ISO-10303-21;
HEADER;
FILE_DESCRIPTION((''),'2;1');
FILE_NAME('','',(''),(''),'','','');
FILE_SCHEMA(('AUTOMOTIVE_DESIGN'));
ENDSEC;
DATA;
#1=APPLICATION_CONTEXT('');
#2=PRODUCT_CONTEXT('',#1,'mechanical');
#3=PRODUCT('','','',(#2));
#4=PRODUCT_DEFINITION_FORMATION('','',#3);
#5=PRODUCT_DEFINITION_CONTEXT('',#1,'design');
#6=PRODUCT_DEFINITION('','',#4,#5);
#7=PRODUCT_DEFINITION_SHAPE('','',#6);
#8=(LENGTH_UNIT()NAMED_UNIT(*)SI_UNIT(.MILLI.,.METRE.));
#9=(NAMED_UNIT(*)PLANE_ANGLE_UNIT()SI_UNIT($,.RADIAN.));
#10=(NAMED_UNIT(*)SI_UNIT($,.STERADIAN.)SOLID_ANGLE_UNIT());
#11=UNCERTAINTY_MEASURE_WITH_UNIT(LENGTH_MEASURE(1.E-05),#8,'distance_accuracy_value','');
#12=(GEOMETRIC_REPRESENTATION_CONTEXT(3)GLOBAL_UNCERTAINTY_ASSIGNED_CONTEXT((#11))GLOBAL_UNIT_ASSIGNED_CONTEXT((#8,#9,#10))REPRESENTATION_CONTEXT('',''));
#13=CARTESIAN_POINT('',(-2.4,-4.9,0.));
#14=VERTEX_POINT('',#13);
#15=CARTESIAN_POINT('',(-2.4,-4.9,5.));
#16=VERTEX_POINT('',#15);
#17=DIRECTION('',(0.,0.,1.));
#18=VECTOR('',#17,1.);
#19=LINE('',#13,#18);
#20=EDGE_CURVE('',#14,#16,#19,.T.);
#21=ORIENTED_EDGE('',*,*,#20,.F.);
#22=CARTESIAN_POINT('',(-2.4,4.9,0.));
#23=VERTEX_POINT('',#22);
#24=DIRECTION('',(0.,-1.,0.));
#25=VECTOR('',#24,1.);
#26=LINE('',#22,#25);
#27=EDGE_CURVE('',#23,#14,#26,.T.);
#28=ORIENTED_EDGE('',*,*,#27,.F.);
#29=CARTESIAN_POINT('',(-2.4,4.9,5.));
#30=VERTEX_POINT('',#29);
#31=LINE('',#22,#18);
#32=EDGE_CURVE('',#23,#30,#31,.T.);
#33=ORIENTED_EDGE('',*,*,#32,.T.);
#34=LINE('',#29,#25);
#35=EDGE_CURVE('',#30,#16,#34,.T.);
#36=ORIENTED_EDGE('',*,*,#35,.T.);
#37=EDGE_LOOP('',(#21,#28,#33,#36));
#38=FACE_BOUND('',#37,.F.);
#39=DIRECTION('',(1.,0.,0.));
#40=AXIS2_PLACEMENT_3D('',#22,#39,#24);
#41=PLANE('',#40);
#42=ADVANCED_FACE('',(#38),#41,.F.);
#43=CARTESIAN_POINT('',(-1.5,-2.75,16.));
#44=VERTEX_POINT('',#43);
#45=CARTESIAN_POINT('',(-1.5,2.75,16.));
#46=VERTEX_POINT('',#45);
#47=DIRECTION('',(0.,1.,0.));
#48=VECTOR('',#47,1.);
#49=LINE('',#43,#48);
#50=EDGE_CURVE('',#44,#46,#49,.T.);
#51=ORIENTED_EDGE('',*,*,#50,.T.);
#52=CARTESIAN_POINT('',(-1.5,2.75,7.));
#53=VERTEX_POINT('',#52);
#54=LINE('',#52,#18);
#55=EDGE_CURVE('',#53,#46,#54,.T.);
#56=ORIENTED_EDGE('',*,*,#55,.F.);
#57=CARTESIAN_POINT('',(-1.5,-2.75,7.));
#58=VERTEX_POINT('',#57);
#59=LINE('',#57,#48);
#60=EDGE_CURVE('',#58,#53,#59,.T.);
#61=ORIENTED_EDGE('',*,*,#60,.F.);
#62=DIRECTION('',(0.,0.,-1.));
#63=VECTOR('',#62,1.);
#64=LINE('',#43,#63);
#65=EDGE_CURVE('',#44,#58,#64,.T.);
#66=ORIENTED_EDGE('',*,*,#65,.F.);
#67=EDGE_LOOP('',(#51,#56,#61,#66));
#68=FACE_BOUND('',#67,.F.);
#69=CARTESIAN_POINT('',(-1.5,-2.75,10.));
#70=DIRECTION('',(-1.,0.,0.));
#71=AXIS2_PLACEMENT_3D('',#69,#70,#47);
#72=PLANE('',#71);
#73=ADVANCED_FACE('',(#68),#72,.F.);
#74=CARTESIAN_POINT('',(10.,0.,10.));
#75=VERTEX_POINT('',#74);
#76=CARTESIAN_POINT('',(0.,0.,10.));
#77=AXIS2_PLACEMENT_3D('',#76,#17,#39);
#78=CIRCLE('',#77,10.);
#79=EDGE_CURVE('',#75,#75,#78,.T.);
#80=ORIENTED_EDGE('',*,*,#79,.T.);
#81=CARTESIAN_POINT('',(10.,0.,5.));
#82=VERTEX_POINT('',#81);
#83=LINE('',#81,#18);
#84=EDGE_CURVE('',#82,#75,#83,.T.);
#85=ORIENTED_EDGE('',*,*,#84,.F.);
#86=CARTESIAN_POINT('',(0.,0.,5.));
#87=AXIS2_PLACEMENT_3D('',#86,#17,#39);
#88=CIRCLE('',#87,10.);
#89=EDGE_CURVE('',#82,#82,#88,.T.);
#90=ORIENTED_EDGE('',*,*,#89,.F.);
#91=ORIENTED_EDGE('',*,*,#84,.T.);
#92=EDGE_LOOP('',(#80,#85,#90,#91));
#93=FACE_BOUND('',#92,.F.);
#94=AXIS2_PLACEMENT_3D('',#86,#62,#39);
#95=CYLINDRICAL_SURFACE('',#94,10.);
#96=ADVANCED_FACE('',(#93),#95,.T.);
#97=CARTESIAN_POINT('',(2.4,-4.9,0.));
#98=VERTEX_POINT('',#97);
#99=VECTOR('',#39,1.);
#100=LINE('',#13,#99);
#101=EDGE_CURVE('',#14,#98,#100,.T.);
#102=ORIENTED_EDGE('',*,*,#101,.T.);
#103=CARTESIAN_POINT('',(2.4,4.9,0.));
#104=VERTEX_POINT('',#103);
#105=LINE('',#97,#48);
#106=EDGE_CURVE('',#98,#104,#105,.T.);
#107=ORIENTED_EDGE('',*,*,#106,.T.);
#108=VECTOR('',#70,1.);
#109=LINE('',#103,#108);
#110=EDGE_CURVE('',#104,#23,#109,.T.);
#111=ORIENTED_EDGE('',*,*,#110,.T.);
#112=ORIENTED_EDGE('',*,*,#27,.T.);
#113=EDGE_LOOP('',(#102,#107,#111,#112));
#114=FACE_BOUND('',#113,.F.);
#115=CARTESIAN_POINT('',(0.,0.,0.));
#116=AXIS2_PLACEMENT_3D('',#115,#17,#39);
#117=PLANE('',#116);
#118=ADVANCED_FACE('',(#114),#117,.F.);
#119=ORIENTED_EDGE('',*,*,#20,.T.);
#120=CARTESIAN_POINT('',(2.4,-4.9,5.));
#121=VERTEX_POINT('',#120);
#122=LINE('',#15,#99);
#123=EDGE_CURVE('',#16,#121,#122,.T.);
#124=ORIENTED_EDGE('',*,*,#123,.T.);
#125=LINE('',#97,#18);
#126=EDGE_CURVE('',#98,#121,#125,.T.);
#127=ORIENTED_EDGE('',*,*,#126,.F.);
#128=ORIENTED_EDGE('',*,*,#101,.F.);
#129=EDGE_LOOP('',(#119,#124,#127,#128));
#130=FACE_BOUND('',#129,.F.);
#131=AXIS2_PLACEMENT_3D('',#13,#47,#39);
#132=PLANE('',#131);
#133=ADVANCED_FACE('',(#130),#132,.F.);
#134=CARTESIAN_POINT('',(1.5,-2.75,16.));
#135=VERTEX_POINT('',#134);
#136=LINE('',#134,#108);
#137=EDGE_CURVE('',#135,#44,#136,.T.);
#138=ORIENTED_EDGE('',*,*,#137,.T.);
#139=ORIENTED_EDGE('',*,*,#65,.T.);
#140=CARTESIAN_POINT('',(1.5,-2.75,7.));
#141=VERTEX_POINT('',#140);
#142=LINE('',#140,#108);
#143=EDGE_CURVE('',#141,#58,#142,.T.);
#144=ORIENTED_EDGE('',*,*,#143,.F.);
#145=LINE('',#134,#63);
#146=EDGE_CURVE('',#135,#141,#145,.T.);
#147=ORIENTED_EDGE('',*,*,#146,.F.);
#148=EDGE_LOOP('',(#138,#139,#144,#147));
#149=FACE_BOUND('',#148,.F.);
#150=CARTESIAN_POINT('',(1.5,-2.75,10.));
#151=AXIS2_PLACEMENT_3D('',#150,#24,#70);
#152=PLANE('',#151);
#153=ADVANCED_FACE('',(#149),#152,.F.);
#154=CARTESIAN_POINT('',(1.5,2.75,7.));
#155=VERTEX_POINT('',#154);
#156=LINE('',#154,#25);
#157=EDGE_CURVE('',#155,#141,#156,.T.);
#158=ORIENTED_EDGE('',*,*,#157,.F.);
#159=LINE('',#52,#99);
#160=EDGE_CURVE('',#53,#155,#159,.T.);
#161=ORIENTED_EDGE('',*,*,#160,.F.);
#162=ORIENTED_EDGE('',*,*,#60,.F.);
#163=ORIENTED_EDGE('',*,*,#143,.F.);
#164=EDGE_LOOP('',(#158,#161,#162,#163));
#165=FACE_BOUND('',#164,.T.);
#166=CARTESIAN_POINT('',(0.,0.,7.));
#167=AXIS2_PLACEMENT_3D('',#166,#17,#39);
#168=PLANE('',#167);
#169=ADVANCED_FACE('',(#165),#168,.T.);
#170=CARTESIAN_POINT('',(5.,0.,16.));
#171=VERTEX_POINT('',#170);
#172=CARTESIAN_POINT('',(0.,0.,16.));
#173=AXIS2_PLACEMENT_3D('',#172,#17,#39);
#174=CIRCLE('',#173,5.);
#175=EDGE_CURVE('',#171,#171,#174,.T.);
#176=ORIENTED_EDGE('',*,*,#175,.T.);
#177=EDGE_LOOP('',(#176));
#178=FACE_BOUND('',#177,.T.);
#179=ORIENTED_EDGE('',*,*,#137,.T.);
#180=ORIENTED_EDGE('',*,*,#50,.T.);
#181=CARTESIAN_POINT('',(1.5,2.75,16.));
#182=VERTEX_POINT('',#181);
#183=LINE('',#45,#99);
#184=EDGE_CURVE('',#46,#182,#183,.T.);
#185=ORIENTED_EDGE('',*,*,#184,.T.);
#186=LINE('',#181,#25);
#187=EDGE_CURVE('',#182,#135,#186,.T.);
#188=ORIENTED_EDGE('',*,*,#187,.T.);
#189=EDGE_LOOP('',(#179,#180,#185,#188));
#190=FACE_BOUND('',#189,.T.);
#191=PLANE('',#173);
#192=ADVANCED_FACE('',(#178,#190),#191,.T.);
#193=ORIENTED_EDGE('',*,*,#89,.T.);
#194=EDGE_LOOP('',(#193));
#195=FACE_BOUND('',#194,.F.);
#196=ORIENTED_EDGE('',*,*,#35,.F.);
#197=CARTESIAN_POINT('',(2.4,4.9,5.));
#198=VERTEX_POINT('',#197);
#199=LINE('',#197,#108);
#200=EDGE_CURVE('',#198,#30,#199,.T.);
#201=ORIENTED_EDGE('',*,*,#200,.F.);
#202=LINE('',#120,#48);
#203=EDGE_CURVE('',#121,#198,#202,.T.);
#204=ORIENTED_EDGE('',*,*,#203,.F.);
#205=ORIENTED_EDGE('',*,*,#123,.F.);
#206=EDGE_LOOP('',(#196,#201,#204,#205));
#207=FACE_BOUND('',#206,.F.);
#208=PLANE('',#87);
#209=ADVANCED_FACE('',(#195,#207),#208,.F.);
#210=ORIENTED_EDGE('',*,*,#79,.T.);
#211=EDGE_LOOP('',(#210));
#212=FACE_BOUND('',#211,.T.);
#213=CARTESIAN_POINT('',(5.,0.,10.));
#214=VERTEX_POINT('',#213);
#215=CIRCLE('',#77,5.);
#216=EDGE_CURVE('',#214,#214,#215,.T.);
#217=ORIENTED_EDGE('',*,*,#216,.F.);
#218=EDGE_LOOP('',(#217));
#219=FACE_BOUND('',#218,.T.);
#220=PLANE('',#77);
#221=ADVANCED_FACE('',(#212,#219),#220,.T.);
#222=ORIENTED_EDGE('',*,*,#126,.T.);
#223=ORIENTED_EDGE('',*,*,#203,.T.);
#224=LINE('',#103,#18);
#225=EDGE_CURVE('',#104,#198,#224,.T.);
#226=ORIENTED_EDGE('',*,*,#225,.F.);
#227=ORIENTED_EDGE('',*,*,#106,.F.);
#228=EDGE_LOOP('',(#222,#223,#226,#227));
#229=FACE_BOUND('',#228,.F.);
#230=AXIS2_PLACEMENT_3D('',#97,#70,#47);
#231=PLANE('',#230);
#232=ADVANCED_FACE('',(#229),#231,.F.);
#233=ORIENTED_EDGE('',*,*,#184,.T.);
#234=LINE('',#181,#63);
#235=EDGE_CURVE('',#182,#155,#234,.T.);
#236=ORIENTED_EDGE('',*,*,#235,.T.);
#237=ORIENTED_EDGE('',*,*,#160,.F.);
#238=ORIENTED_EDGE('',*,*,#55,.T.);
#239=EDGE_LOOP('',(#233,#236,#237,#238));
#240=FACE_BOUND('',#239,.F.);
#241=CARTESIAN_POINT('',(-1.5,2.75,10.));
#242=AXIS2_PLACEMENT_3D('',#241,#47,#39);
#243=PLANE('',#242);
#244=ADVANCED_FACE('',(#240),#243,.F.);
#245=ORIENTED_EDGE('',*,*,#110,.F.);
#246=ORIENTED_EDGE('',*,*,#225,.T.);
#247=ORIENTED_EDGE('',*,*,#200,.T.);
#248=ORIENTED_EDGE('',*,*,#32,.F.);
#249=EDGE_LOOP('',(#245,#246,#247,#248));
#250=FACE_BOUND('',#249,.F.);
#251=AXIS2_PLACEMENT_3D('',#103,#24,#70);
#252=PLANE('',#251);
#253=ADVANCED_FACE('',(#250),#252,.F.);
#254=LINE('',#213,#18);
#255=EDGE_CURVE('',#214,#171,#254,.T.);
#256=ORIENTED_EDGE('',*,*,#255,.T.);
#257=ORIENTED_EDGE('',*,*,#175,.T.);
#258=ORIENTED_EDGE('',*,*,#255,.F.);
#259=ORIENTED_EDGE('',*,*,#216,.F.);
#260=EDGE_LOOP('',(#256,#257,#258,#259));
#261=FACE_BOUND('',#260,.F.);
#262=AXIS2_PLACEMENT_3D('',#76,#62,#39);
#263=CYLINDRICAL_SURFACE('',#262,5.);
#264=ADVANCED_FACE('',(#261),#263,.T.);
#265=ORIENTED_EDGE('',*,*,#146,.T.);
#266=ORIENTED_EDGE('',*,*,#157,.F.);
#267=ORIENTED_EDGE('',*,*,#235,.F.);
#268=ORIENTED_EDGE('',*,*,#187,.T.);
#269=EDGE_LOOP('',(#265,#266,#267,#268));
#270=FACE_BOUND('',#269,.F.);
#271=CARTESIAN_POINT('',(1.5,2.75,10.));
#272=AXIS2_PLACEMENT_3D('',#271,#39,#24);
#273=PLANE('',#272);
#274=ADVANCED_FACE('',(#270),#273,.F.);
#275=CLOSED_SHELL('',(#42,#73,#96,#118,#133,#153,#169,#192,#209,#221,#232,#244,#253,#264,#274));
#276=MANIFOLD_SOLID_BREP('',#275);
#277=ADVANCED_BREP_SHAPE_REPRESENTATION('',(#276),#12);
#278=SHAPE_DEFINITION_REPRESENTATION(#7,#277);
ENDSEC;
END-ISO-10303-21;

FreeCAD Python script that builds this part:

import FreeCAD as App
import Part
import Sketcher


def add_polygon(sketch, points):
    """Adds a closed chain of lines whose ends are joined by coincident constraints."""
    first, n = sketch.GeometryCount, len(points)
    for a, b in zip(points, points[1:] + points[:1]):
        sketch.addGeometry(Part.LineSegment(App.Vector(*a, 0), App.Vector(*b, 0)), False)
    for i in range(n):
        sketch.addConstraint(Sketcher.Constraint("Coincident", first + i, 2, first + (i + 1) % n, 1))

doc = App.newDocument("Part")
params = doc.addObject("Spreadsheet::Sheet", "Params")
for row, (alias, value) in enumerate([
    ("sketch1_width", "4.8 mm"),
    ("sketch1_height", "9.8 mm"),
    ("pad1_length", "5 mm"),
    ("sketch2_diameter", "20 mm"),
    ("pad2_length", "5 mm"),
    ("sketch3_diameter", "10 mm"),
    ("sketch3_width", "3 mm"),
    ("sketch3_height", "5.5 mm"),
    ("pad3_length", "6 mm"),
    ("sketch4_width", "3 mm"),
    ("sketch4_height", "5.5 mm"),
    ("pocket1_length", "3 mm"),
], start=1):
    params.set(f"A{row}", alias)
    params.set(f"B{row}", "=" + value)
    params.setAlias(f"B{row}", alias)

body = doc.addObject("PartDesign::Body", "Body")

# Sketch on XY plane
sketch1 = body.newObject("Sketcher::SketchObject", "Sketch")
sketch1.AttachmentSupport = (doc.getObject("XY_Plane"), [""])
sketch1.MapMode = "FlatFace"
add_polygon(sketch1, [(2.4, -4.9), (2.4, 4.9), (-2.4, 4.9), (-2.4, -4.9)])  # lines 0-3
sketch1.addConstraint([
    Sketcher.Constraint("Vertical", 0),
    Sketcher.Constraint("Horizontal", 1),
    Sketcher.Constraint("Vertical", 2),
    Sketcher.Constraint("Horizontal", 3),
    Sketcher.Constraint("Symmetric", 0, 2, 2, 2, -1, 1),
    Sketcher.Constraint("DistanceX", 1, 2, 1, 1, 4.8),
    Sketcher.Constraint("DistanceY", 0, 1, 0, 2, 9.8),
])
sketch1.setExpression("Constraints[9]", "Params.sketch1_width")
sketch1.setExpression("Constraints[10]", "Params.sketch1_height")
pad1 = body.newObject("PartDesign::Pad", "Pad")
pad1.Profile = sketch1
pad1.setExpression("Length", "Params.pad1_length")

# Sketch on XY plane
sketch2 = body.newObject("Sketcher::SketchObject", "Sketch001")
sketch2.AttachmentSupport = (doc.getObject("XY_Plane"), [""])
sketch2.MapMode = "FlatFace"
sketch2.AttachmentOffset = App.Placement(App.Vector(0, 0, 5), App.Rotation())
sketch2.addGeometry(Part.Circle(App.Vector(0, 0, 0), App.Vector(0, 0, 1), 10), False)
sketch2.addConstraint([
    Sketcher.Constraint("Coincident", 0, 3, -1, 1),
    Sketcher.Constraint("Diameter", 0, 20.0),
])
sketch2.setExpression("Constraints[1]", "Params.sketch2_diameter")
pad2 = body.newObject("PartDesign::Pad", "Pad001")
pad2.Profile = sketch2
pad2.setExpression("Length", "Params.pad2_length")

# Sketch on XY plane
sketch3 = body.newObject("Sketcher::SketchObject", "Sketch002")
sketch3.AttachmentSupport = (doc.getObject("XY_Plane"), [""])
sketch3.MapMode = "FlatFace"
sketch3.AttachmentOffset = App.Placement(App.Vector(0, 0, 10), App.Rotation())
sketch3.addGeometry(Part.Circle(App.Vector(0, 0, 0), App.Vector(0, 0, 1), 5), False)  # 0
add_polygon(sketch3, [(-1.5, -2.8), (-1.5, 2.8), (1.5, 2.8), (1.5, -2.8)])  # lines 1-4
sketch3.addConstraint([
    Sketcher.Constraint("Vertical", 1),
    Sketcher.Constraint("Horizontal", 2),
    Sketcher.Constraint("Vertical", 3),
    Sketcher.Constraint("Horizontal", 4),
    Sketcher.Constraint("Coincident", 0, 3, -1, 1),
    Sketcher.Constraint("Symmetric", 1, 2, 3, 2, -1, 1),
    Sketcher.Constraint("Diameter", 0, 10.0),
    Sketcher.Constraint("DistanceX", 2, 1, 2, 2, 3.0),
    Sketcher.Constraint("DistanceY", 1, 1, 1, 2, 5.5),
])
sketch3.setExpression("Constraints[10]", "Params.sketch3_diameter")
sketch3.setExpression("Constraints[11]", "Params.sketch3_width")
sketch3.setExpression("Constraints[12]", "Params.sketch3_height")
pad3 = body.newObject("PartDesign::Pad", "Pad002")
pad3.Profile = sketch3
pad3.setExpression("Length", "Params.pad3_length")

# Sketch on XY plane
sketch4 = body.newObject("Sketcher::SketchObject", "Sketch003")
sketch4.AttachmentSupport = (doc.getObject("XY_Plane"), [""])
sketch4.MapMode = "FlatFace"
sketch4.AttachmentOffset = App.Placement(App.Vector(0, 0, 10), App.Rotation())
add_polygon(sketch4, [(1.5, 2.8), (-1.5, 2.8), (-1.5, -2.8), (1.5, -2.8)])  # lines 0-3
sketch4.addConstraint([
    Sketcher.Constraint("Horizontal", 0),
    Sketcher.Constraint("Vertical", 1),
    Sketcher.Constraint("Horizontal", 2),
    Sketcher.Constraint("Vertical", 3),
    Sketcher.Constraint("Symmetric", 0, 2, 2, 2, -1, 1),
    Sketcher.Constraint("DistanceX", 0, 2, 0, 1, 3.0),
    Sketcher.Constraint("DistanceY", 1, 2, 1, 1, 5.5),
])
sketch4.setExpression("Constraints[9]", "Params.sketch4_width")
sketch4.setExpression("Constraints[10]", "Params.sketch4_height")
pocket1 = body.newObject("PartDesign::Pocket", "Pocket")
pocket1.Profile = sketch4
pocket1.setExpression("Length", "Params.pocket1_length")

doc.recompute()
